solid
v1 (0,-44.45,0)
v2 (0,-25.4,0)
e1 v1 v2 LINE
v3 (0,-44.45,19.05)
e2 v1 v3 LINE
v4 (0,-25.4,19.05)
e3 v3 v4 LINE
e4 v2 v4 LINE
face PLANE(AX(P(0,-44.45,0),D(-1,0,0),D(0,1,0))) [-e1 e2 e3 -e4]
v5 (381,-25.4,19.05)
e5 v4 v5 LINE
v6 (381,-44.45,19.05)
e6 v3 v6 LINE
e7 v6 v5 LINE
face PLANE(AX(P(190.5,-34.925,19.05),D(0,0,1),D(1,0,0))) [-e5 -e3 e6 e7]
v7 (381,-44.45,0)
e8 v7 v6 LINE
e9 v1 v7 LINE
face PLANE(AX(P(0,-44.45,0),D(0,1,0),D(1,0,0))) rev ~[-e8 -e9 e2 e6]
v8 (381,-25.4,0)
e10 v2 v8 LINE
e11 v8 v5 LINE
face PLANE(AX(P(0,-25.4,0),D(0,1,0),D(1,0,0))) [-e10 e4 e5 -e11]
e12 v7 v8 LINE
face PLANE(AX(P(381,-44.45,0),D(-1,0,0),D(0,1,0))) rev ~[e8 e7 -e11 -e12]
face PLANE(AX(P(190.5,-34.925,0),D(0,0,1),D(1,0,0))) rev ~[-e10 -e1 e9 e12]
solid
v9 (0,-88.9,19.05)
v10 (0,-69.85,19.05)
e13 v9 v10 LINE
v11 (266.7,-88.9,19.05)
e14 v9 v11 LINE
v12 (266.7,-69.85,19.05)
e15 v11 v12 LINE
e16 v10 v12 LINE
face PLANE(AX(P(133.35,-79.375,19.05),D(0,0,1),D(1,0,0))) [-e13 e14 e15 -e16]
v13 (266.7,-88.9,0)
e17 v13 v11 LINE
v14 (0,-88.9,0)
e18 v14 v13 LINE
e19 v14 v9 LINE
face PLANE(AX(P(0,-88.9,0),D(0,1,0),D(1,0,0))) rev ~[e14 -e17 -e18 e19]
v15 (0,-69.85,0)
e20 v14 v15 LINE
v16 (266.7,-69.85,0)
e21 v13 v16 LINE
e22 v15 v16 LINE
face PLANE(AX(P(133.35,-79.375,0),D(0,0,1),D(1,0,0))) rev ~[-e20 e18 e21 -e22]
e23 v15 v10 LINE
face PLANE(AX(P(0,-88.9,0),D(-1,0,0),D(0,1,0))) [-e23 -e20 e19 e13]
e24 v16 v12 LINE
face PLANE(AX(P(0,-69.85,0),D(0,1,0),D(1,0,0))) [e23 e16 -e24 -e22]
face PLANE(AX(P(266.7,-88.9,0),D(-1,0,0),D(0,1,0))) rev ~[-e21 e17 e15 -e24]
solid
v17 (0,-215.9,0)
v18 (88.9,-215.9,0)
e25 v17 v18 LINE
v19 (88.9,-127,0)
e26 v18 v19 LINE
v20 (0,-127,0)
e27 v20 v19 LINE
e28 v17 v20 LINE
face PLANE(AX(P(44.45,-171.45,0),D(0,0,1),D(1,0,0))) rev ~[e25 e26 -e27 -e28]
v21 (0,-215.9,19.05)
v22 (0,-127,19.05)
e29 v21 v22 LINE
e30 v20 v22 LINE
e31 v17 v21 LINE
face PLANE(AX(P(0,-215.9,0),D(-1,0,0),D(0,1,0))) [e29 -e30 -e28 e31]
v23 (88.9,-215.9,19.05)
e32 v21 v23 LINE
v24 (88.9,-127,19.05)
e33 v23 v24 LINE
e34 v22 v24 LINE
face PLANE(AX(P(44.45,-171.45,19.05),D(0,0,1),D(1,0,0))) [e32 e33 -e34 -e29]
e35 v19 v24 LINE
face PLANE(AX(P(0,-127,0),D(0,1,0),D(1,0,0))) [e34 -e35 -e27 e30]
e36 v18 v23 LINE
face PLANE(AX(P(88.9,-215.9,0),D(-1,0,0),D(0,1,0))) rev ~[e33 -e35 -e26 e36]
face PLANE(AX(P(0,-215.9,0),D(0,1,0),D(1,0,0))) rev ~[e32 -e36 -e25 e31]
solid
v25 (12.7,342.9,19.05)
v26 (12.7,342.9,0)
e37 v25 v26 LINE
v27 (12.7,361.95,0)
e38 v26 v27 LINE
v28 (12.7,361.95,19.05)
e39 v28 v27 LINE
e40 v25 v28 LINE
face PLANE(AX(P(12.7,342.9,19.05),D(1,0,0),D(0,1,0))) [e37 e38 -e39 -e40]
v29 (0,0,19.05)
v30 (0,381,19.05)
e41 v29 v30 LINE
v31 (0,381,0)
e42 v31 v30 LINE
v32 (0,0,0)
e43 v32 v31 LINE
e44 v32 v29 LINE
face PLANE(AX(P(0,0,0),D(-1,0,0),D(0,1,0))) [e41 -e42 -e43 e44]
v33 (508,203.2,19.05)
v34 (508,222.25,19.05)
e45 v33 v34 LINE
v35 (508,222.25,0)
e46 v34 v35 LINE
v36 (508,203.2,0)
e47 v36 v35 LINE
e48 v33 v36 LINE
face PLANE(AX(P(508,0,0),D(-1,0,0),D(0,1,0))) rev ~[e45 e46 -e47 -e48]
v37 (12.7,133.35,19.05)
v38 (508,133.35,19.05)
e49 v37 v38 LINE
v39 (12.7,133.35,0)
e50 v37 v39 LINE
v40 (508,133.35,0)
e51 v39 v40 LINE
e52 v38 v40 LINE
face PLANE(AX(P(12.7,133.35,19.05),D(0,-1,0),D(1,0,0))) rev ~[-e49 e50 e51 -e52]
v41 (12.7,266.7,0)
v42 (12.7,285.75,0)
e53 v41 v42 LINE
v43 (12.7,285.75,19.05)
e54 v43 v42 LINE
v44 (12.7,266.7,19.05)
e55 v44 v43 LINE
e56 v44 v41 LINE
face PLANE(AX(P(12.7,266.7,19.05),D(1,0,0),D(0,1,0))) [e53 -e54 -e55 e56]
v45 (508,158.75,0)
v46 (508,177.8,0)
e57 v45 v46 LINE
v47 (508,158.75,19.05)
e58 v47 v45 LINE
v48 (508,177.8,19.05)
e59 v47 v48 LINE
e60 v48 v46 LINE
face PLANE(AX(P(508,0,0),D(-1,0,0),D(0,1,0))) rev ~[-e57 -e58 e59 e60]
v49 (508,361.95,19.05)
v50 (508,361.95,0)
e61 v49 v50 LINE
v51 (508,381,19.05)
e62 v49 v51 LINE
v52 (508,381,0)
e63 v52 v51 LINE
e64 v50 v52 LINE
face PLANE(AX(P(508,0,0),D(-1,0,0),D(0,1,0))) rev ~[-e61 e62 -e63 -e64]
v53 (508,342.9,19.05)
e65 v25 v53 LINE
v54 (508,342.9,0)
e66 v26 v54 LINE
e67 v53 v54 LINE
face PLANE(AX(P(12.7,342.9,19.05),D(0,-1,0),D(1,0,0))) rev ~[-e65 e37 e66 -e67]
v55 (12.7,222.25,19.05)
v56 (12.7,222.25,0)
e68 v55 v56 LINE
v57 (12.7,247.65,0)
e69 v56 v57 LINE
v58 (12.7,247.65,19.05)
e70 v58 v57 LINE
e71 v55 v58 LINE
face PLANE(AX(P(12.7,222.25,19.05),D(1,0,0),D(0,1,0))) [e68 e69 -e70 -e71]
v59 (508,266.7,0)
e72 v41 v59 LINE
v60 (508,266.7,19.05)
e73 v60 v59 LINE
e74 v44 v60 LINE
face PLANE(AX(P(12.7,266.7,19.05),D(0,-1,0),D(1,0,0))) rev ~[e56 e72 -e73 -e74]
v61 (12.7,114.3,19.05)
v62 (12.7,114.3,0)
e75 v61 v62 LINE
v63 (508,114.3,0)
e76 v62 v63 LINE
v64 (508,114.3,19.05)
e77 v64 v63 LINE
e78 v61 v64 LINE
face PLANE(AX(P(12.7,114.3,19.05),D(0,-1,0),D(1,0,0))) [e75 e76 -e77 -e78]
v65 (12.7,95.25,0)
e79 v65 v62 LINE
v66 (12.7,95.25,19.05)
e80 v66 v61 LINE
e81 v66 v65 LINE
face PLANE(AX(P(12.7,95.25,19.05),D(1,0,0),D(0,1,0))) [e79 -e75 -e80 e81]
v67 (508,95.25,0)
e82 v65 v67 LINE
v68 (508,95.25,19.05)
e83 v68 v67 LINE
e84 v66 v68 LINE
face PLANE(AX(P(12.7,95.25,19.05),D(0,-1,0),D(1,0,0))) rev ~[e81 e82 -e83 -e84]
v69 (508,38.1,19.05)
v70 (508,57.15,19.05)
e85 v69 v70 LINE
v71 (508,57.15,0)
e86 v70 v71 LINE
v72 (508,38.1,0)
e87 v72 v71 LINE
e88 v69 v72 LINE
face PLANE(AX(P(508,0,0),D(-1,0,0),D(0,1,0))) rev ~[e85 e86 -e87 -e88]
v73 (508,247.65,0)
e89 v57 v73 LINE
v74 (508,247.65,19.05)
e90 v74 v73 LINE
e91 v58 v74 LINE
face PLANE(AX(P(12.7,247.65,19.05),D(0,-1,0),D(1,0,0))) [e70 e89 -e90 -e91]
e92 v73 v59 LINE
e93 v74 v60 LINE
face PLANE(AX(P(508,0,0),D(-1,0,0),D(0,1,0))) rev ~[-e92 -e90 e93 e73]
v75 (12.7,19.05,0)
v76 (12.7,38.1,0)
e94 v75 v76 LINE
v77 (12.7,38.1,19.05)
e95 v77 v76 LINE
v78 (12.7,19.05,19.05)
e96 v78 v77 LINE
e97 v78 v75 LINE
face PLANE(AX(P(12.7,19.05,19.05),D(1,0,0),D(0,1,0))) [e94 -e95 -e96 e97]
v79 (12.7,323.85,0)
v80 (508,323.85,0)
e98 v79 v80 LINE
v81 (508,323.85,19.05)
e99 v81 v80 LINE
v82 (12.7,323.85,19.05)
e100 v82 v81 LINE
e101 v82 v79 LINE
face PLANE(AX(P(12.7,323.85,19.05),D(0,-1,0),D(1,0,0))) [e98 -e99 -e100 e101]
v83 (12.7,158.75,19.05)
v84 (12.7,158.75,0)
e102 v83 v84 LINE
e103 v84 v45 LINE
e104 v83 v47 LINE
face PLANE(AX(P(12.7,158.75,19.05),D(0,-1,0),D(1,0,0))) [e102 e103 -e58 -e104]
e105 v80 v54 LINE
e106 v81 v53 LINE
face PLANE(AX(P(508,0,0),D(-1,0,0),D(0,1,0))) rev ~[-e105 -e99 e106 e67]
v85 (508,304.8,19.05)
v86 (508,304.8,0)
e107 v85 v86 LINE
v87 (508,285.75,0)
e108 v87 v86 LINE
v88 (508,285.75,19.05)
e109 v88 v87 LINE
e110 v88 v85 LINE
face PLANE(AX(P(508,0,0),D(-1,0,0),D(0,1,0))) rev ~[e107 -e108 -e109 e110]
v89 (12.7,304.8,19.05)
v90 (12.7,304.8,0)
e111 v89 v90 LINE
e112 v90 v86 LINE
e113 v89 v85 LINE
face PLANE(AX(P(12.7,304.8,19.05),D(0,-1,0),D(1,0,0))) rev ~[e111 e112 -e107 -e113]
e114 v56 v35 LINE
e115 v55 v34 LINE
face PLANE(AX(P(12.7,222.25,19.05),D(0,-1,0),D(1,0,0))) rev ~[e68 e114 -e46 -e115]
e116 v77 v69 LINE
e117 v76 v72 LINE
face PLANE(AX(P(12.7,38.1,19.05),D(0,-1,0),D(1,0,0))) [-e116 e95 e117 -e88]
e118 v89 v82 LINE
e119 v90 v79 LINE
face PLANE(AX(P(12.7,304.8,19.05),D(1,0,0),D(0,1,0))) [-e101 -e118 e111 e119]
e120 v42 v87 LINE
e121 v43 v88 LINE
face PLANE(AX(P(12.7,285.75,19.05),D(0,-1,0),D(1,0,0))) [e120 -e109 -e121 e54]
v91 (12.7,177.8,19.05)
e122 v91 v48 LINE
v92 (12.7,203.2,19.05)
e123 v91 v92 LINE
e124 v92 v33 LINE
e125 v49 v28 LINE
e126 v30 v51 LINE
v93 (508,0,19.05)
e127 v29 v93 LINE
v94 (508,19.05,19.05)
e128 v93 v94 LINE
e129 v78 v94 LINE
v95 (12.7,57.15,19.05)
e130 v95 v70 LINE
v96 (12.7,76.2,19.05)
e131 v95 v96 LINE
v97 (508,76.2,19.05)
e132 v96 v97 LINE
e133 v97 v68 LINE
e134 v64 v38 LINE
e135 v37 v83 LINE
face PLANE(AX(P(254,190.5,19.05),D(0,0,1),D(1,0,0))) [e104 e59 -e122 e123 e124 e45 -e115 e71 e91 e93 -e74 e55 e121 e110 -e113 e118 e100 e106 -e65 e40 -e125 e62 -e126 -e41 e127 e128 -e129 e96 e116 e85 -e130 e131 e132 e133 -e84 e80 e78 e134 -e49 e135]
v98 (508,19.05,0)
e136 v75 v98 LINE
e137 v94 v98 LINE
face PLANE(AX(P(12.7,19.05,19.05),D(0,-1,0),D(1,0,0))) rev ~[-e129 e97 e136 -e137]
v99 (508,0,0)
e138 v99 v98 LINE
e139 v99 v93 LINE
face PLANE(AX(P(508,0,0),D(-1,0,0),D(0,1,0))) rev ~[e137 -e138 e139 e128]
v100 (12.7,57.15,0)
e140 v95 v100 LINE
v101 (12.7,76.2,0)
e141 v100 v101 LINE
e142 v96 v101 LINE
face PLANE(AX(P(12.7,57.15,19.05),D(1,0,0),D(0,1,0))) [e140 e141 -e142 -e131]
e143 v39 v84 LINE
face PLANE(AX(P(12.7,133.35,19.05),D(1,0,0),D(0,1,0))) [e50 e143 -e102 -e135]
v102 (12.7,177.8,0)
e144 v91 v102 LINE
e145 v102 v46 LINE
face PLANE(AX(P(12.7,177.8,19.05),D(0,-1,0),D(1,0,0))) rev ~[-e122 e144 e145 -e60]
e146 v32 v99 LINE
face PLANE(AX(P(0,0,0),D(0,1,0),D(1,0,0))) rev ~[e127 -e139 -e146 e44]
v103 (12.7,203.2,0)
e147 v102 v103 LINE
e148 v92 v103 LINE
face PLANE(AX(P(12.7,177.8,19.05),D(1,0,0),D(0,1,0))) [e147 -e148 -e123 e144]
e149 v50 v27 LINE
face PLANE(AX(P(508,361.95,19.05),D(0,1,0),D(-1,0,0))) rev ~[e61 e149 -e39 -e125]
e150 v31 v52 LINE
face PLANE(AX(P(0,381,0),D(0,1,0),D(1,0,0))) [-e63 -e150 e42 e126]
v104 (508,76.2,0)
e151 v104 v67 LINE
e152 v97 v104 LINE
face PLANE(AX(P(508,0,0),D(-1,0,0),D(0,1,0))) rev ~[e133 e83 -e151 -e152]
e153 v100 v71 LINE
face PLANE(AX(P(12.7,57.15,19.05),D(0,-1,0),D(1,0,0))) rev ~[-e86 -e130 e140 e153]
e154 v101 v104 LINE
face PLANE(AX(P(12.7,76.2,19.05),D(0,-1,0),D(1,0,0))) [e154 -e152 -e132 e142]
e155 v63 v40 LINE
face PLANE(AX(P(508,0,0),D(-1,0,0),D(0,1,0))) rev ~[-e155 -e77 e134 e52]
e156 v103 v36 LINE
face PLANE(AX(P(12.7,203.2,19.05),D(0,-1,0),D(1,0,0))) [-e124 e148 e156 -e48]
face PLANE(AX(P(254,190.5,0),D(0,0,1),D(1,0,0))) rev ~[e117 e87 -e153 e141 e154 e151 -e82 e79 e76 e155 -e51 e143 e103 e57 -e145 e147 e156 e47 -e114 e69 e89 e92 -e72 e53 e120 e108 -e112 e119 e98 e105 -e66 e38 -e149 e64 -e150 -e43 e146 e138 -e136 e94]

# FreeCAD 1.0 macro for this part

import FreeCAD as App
import Part
import Sketcher
Q = App.Units.Quantity

doc = App.newDocument("Part")
params = doc.addObject("Spreadsheet::Sheet", "Params")
for row, (alias, value) in enumerate([
    ("sketch1_width", "20 in"),
    ("sketch1_height", "15 in"),
    ("pad1_length", "0.75 in"),
    ("sketch2_height", "1 in"),
    ("sketch2_width", "19.5 in"),
    ("sketch2_height2", "0.75 in"),
    ("pocket1_length", "1 in"),
    ("sketch3_width", "15 in"),
    ("sketch3_width2", "10.5 in"),
    ("sketch3_width3", "3.5 in"),
    ("pad2_length", "0.75 in"),
], start=1):
    params.set(f"A{row}", alias)
    params.set(f"B{row}", "=" + value)
    params.setAlias(f"B{row}", alias)

body = doc.addObject("PartDesign::Body", "Body")

sketch1 = body.newObject("Sketcher::SketchObject", "Sketch")
sketch1.AttachmentSupport = (doc.getObject("XY_Plane"), [""])
sketch1.MapMode = "FlatFace"
sketch1.addGeometry([
    Part.LineSegment(App.Vector(0, 381, 0), App.Vector(0, 0, 0)),
    Part.LineSegment(App.Vector(0, 0, 0), App.Vector(508, 0, 0)),
    Part.LineSegment(App.Vector(508, 0, 0), App.Vector(508, 381, 0)),
    Part.LineSegment(App.Vector(508, 381, 0), App.Vector(0, 381, 0)),
], False)
sketch1.addConstraint([
    Sketcher.Constraint("Coincident", 0, 2, 1, 1),
    Sketcher.Constraint("Coincident", 1, 2, 2, 1),
    Sketcher.Constraint("Coincident", 2, 2, 3, 1),
    Sketcher.Constraint("Coincident", 3, 2, 0, 1),
    Sketcher.Constraint("Vertical", 0),
    Sketcher.Constraint("Horizontal", 1),
    Sketcher.Constraint("Vertical", 2),
    Sketcher.Constraint("Horizontal", 3),
    Sketcher.Constraint("Coincident", 0, 2, -1, 1),
    Sketcher.Constraint("DistanceX", 1, 1, 1, 2, Q("20 in")),
    Sketcher.Constraint("DistanceY", 0, 2, 0, 1, Q("15 in")),
])
sketch1.setExpression("Constraints[9]", "Params.sketch1_width")
sketch1.setExpression("Constraints[10]", "Params.sketch1_height")
pad1 = body.newObject("PartDesign::Pad", "Pad")
pad1.Profile = sketch1
pad1.setExpression("Length", "Params.pad1_length")

sketch2 = body.newObject("Sketcher::SketchObject", "Sketch001")
sketch2.AttachmentSupport = (doc.getObject("XY_Plane"), [""])
sketch2.MapMode = "FlatFace"
sketch2.AttachmentOffset = App.Placement(App.Vector(0, 0, 0.75 * 25.4), App.Rotation())
sketch2.addGeometry([
    Part.LineSegment(App.Vector(13, 38, 0), App.Vector(13, 19, 0)),
    Part.LineSegment(App.Vector(13, 19, 0), App.Vector(508, 19, 0)),
    Part.LineSegment(App.Vector(508, 19, 0), App.Vector(508, 38, 0)),
    Part.LineSegment(App.Vector(508, 38, 0), App.Vector(13, 38, 0)),
    Part.LineSegment(App.Vector(13, 76, 0), App.Vector(13, 57, 0)),
    Part.LineSegment(App.Vector(13, 57, 0), App.Vector(508, 57, 0)),
    Part.LineSegment(App.Vector(508, 57, 0), App.Vector(508, 76, 0)),
    Part.LineSegment(App.Vector(508, 76, 0), App.Vector(13, 76, 0)),
    Part.LineSegment(App.Vector(13, 114, 0), App.Vector(13, 95, 0)),
    Part.LineSegment(App.Vector(13, 95, 0), App.Vector(508, 95, 0)),
    Part.LineSegment(App.Vector(508, 95, 0), App.Vector(508, 114, 0)),
    Part.LineSegment(App.Vector(508, 114, 0), App.Vector(13, 114, 0)),
    Part.LineSegment(App.Vector(13, 159, 0), App.Vector(13, 133, 0)),
    Part.LineSegment(App.Vector(13, 133, 0), App.Vector(508, 133, 0)),
    Part.LineSegment(App.Vector(508, 133, 0), App.Vector(508, 159, 0)),
    Part.LineSegment(App.Vector(508, 159, 0), App.Vector(13, 159, 0)),
    Part.LineSegment(App.Vector(13, 203, 0), App.Vector(13, 178, 0)),
    Part.LineSegment(App.Vector(13, 178, 0), App.Vector(508, 178, 0)),
    Part.LineSegment(App.Vector(508, 178, 0), App.Vector(508, 203, 0)),
    Part.LineSegment(App.Vector(508, 203, 0), App.Vector(13, 203, 0)),
    Part.LineSegment(App.Vector(13, 248, 0), App.Vector(13, 222, 0)),
    Part.LineSegment(App.Vector(13, 222, 0), App.Vector(508, 222, 0)),
    Part.LineSegment(App.Vector(508, 222, 0), App.Vector(508, 248, 0)),
    Part.LineSegment(App.Vector(508, 248, 0), App.Vector(13, 248, 0)),
    Part.LineSegment(App.Vector(13, 286, 0), App.Vector(13, 267, 0)),
    Part.LineSegment(App.Vector(13, 267, 0), App.Vector(508, 267, 0)),
    Part.LineSegment(App.Vector(508, 267, 0), App.Vector(508, 286, 0)),
    Part.LineSegment(App.Vector(508, 286, 0), App.Vector(13, 286, 0)),
    Part.LineSegment(App.Vector(13, 324, 0), App.Vector(13, 305, 0)),
    Part.LineSegment(App.Vector(13, 305, 0), App.Vector(508, 305, 0)),
    Part.LineSegment(App.Vector(508, 305, 0), App.Vector(508, 324, 0)),
    Part.LineSegment(App.Vector(508, 324, 0), App.Vector(13, 324, 0)),
    Part.LineSegment(App.Vector(13, 362, 0), App.Vector(13, 343, 0)),
    Part.LineSegment(App.Vector(13, 343, 0), App.Vector(508, 343, 0)),
    Part.LineSegment(App.Vector(508, 343, 0), App.Vector(508, 362, 0)),
    Part.LineSegment(App.Vector(508, 362, 0), App.Vector(13, 362, 0)),
], False)
sketch2.addConstraint([
    Sketcher.Constraint("Coincident", 0, 2, 1, 1),
    Sketcher.Constraint("Coincident", 1, 2, 2, 1),
    Sketcher.Constraint("Coincident", 2, 2, 3, 1),
    Sketcher.Constraint("Coincident", 3, 2, 0, 1),
    Sketcher.Constraint("Coincident", 4, 2, 5, 1),
    Sketcher.Constraint("Coincident", 5, 2, 6, 1),
    Sketcher.Constraint("Coincident", 6, 2, 7, 1),
    Sketcher.Constraint("Coincident", 7, 2, 4, 1),
    Sketcher.Constraint("Coincident", 8, 2, 9, 1),
    Sketcher.Constraint("Coincident", 9, 2, 10, 1),
    Sketcher.Constraint("Coincident", 10, 2, 11, 1),
    Sketcher.Constraint("Coincident", 11, 2, 8, 1),
    Sketcher.Constraint("Coincident", 12, 2, 13, 1),
    Sketcher.Constraint("Coincident", 13, 2, 14, 1),
    Sketcher.Constraint("Coincident", 14, 2, 15, 1),
    Sketcher.Constraint("Coincident", 15, 2, 12, 1),
    Sketcher.Constraint("Coincident", 16, 2, 17, 1),
    Sketcher.Constraint("Coincident", 17, 2, 18, 1),
    Sketcher.Constraint("Coincident", 18, 2, 19, 1),
    Sketcher.Constraint("Coincident", 19, 2, 16, 1),
    Sketcher.Constraint("Coincident", 20, 2, 21, 1),
    Sketcher.Constraint("Coincident", 21, 2, 22, 1),
    Sketcher.Constraint("Coincident", 22, 2, 23, 1),
    Sketcher.Constraint("Coincident", 23, 2, 20, 1),
    Sketcher.Constraint("Coincident", 24, 2, 25, 1),
    Sketcher.Constraint("Coincident", 25, 2, 26, 1),
    Sketcher.Constraint("Coincident", 26, 2, 27, 1),
    Sketcher.Constraint("Coincident", 27, 2, 24, 1),
    Sketcher.Constraint("Coincident", 28, 2, 29, 1),
    Sketcher.Constraint("Coincident", 29, 2, 30, 1),
    Sketcher.Constraint("Coincident", 30, 2, 31, 1),
    Sketcher.Constraint("Coincident", 31, 2, 28, 1),
    Sketcher.Constraint("Coincident", 32, 2, 33, 1),
    Sketcher.Constraint("Coincident", 33, 2, 34, 1),
    Sketcher.Constraint("Coincident", 34, 2, 35, 1),
    Sketcher.Constraint("Coincident", 35, 2, 32, 1),
    Sketcher.Constraint("Vertical", 0),
    Sketcher.Constraint("Horizontal", 1),
    Sketcher.Constraint("Vertical", 2),
    Sketcher.Constraint("Horizontal", 3),
    Sketcher.Constraint("Vertical", 4),
    Sketcher.Constraint("Horizontal", 5),
    Sketcher.Constraint("Vertical", 6),
    Sketcher.Constraint("Horizontal", 7),
    Sketcher.Constraint("Vertical", 8),
    Sketcher.Constraint("Horizontal", 9),
    Sketcher.Constraint("Vertical", 10),
    Sketcher.Constraint("Horizontal", 11),
    Sketcher.Constraint("Vertical", 12),
    Sketcher.Constraint("Horizontal", 13),
    Sketcher.Constraint("Vertical", 14),
    Sketcher.Constraint("Horizontal", 15),
    Sketcher.Constraint("Vertical", 16),
    Sketcher.Constraint("Horizontal", 17),
    Sketcher.Constraint("Vertical", 18),
    Sketcher.Constraint("Horizontal", 19),
    Sketcher.Constraint("Vertical", 20),
    Sketcher.Constraint("Horizontal", 21),
    Sketcher.Constraint("Vertical", 22),
    Sketcher.Constraint("Horizontal", 23),
    Sketcher.Constraint("Vertical", 24),
    Sketcher.Constraint("Horizontal", 25),
    Sketcher.Constraint("Vertical", 26),
    Sketcher.Constraint("Horizontal", 27),
    Sketcher.Constraint("Vertical", 28),
    Sketcher.Constraint("Horizontal", 29),
    Sketcher.Constraint("Vertical", 30),
    Sketcher.Constraint("Horizontal", 31),
    Sketcher.Constraint("Vertical", 32),
    Sketcher.Constraint("Horizontal", 33),
    Sketcher.Constraint("Vertical", 34),
    Sketcher.Constraint("Horizontal", 35),
    Sketcher.Constraint("Vertical", 3, 2, 4, 2),
    Sketcher.Constraint("Vertical", 2, 2, 5, 2),
    Sketcher.Constraint("Vertical", 7, 2, 8, 2),
    Sketcher.Constraint("Vertical", 6, 2, 9, 2),
    Sketcher.Constraint("Vertical", 11, 2, 12, 2),
    Sketcher.Constraint("Vertical", 10, 2, 13, 2),
    Sketcher.Constraint("Vertical", 15, 2, 16, 2),
    Sketcher.Constraint("Vertical", 14, 2, 17, 2),
    Sketcher.Constraint("Vertical", 19, 2, 20, 2),
    Sketcher.Constraint("Vertical", 18, 2, 21, 2),
    Sketcher.Constraint("Vertical", 23, 2, 24, 2),
    Sketcher.Constraint("Vertical", 22, 2, 25, 2),
    Sketcher.Constraint("Vertical", 27, 2, 28, 2),
    Sketcher.Constraint("Vertical", 26, 2, 29, 2),
    Sketcher.Constraint("Vertical", 31, 2, 32, 2),
    Sketcher.Constraint("Vertical", 30, 2, 33, 2),
    Sketcher.Constraint("Equal", 2, 4),
    Sketcher.Constraint("Equal", 6, 8),
    Sketcher.Constraint("Equal", 14, 16),
    Sketcher.Constraint("Equal", 18, 20),
    Sketcher.Constraint("Equal", 10, 24),
    Sketcher.Constraint("Equal", 26, 28),
    Sketcher.Constraint("Equal", 30, 32),
    Sketcher.Constraint("DistanceY", 12, 2, 12, 1, Q("1 in")),
    Sketcher.Constraint("DistanceX", 1, 1, 1, 2, Q("19.5 in")),
    Sketcher.Constraint("DistanceX", -1, 1, 1, 2, Q("20 in")),
    Sketcher.Constraint("DistanceY", -1, 1, 6, 2, Q("3 in")),
    Sketcher.Constraint("DistanceY", -1, 1, 16, 2, Q("7 in")),
    Sketcher.Constraint("DistanceY", -1, 1, 28, 2, Q("12 in")),
    Sketcher.Constraint("DistanceY", 0, 2, 8, 2, Q("3 in")),
    Sketcher.Constraint("DistanceY", 4, 2, 12, 2, Q("3 in")),
    Sketcher.Constraint("DistanceY", 22, 2, 30, 2, Q("3 in")),
    Sketcher.Constraint("DistanceY", 24, 2, 32, 2, Q("3 in")),
    Sketcher.Constraint("DistanceY", 0, 2, 0, 1, Q("0.75 in")),
    Sketcher.Constraint("DistanceY", -1, 1, 2, 2, Q("1.5 in")),
    Sketcher.Constraint("DistanceY", -1, 1, 24, 2, Q("10.5 in")),
])
sketch2.setExpression("Constraints[95]", "Params.sketch2_height")
sketch2.setExpression("Constraints[96]", "Params.sketch2_width")
sketch2.setExpression("Constraints[105]", "Params.sketch2_height2")
pocket1 = body.newObject("PartDesign::Pocket", "Pocket")
pocket1.Profile = sketch2
pocket1.setExpression("Length", "Params.pocket1_length")
body2 = doc.addObject("PartDesign::Body", "Body001")
body2.AllowCompound = True

sketch3 = body2.newObject("Sketcher::SketchObject", "Sketch002")
sketch3.AttachmentSupport = (doc.getObject("XY_Plane001"), [""])
sketch3.MapMode = "FlatFace"
sketch3.addGeometry([
    Part.LineSegment(App.Vector(0, -25, 0), App.Vector(0, -44, 0)),
    Part.LineSegment(App.Vector(0, -44, 0), App.Vector(381, -44, 0)),
    Part.LineSegment(App.Vector(381, -44, 0), App.Vector(381, -25, 0)),
    Part.LineSegment(App.Vector(381, -25, 0), App.Vector(0, -25, 0)),
    Part.LineSegment(App.Vector(0, -70, 0), App.Vector(0, -89, 0)),
    Part.LineSegment(App.Vector(0, -89, 0), App.Vector(267, -89, 0)),
    Part.LineSegment(App.Vector(267, -89, 0), App.Vector(267, -70, 0)),
    Part.LineSegment(App.Vector(267, -70, 0), App.Vector(0, -70, 0)),
    Part.LineSegment(App.Vector(0, -127, 0), App.Vector(0, -216, 0)),
    Part.LineSegment(App.Vector(0, -216, 0), App.Vector(89, -216, 0)),
    Part.LineSegment(App.Vector(89, -216, 0), App.Vector(89, -127, 0)),
    Part.LineSegment(App.Vector(89, -127, 0), App.Vector(0, -127, 0)),
], False)
sketch3.addConstraint([
    Sketcher.Constraint("Coincident", 0, 2, 1, 1),
    Sketcher.Constraint("Coincident", 1, 2, 2, 1),
    Sketcher.Constraint("Coincident", 2, 2, 3, 1),
    Sketcher.Constraint("Coincident", 3, 2, 0, 1),
    Sketcher.Constraint("Coincident", 4, 2, 5, 1),
    Sketcher.Constraint("Coincident", 5, 2, 6, 1),
    Sketcher.Constraint("Coincident", 6, 2, 7, 1),
    Sketcher.Constraint("Coincident", 7, 2, 4, 1),
    Sketcher.Constraint("Coincident", 8, 2, 9, 1),
    Sketcher.Constraint("Coincident", 9, 2, 10, 1),
    Sketcher.Constraint("Coincident", 10, 2, 11, 1),
    Sketcher.Constraint("Coincident", 11, 2, 8, 1),
    Sketcher.Constraint("Vertical", 0),
    Sketcher.Constraint("Horizontal", 1),
    Sketcher.Constraint("Vertical", 2),
    Sketcher.Constraint("Horizontal", 3),
    Sketcher.Constraint("Vertical", 4),
    Sketcher.Constraint("Horizontal", 5),
    Sketcher.Constraint("Vertical", 6),
    Sketcher.Constraint("Horizontal", 7),
    Sketcher.Constraint("Vertical", 8),
    Sketcher.Constraint("Horizontal", 9),
    Sketcher.Constraint("Vertical", 10),
    Sketcher.Constraint("Horizontal", 11),
    Sketcher.Constraint("PointOnObject", 0, 2, -2),
    Sketcher.Constraint("PointOnObject", 4, 2, -2),
    Sketcher.Constraint("PointOnObject", 8, 2, -2),
    Sketcher.Constraint("Equal", 2, 4),
    Sketcher.Constraint("Equal", 11, 8),
    Sketcher.Constraint("DistanceX", 1, 1, 1, 2, Q("15 in")),
    Sketcher.Constraint("DistanceX", 5, 1, 5, 2, Q("10.5 in")),
    Sketcher.Constraint("DistanceX", 9, 1, 9, 2, Q("3.5 in")),
    Sketcher.Constraint("DistanceY", 2, 2, -1, 1, Q("1 in")),
    Sketcher.Constraint("DistanceY", 10, 2, -1, 1, Q("5 in")),
    Sketcher.Constraint("DistanceY", 6, 2, 1, 2, Q("1 in")),
    Sketcher.Constraint("DistanceY", 8, 2, 4, 2, Q("5 in")),
])
sketch3.setExpression("Constraints[29]", "Params.sketch3_width")
sketch3.setExpression("Constraints[30]", "Params.sketch3_width2")
sketch3.setExpression("Constraints[31]", "Params.sketch3_width3")
pad2 = body2.newObject("PartDesign::Pad", "Pad001")
pad2.Profile = sketch3
pad2.setExpression("Length", "Params.pad2_length")

doc.recompute()
